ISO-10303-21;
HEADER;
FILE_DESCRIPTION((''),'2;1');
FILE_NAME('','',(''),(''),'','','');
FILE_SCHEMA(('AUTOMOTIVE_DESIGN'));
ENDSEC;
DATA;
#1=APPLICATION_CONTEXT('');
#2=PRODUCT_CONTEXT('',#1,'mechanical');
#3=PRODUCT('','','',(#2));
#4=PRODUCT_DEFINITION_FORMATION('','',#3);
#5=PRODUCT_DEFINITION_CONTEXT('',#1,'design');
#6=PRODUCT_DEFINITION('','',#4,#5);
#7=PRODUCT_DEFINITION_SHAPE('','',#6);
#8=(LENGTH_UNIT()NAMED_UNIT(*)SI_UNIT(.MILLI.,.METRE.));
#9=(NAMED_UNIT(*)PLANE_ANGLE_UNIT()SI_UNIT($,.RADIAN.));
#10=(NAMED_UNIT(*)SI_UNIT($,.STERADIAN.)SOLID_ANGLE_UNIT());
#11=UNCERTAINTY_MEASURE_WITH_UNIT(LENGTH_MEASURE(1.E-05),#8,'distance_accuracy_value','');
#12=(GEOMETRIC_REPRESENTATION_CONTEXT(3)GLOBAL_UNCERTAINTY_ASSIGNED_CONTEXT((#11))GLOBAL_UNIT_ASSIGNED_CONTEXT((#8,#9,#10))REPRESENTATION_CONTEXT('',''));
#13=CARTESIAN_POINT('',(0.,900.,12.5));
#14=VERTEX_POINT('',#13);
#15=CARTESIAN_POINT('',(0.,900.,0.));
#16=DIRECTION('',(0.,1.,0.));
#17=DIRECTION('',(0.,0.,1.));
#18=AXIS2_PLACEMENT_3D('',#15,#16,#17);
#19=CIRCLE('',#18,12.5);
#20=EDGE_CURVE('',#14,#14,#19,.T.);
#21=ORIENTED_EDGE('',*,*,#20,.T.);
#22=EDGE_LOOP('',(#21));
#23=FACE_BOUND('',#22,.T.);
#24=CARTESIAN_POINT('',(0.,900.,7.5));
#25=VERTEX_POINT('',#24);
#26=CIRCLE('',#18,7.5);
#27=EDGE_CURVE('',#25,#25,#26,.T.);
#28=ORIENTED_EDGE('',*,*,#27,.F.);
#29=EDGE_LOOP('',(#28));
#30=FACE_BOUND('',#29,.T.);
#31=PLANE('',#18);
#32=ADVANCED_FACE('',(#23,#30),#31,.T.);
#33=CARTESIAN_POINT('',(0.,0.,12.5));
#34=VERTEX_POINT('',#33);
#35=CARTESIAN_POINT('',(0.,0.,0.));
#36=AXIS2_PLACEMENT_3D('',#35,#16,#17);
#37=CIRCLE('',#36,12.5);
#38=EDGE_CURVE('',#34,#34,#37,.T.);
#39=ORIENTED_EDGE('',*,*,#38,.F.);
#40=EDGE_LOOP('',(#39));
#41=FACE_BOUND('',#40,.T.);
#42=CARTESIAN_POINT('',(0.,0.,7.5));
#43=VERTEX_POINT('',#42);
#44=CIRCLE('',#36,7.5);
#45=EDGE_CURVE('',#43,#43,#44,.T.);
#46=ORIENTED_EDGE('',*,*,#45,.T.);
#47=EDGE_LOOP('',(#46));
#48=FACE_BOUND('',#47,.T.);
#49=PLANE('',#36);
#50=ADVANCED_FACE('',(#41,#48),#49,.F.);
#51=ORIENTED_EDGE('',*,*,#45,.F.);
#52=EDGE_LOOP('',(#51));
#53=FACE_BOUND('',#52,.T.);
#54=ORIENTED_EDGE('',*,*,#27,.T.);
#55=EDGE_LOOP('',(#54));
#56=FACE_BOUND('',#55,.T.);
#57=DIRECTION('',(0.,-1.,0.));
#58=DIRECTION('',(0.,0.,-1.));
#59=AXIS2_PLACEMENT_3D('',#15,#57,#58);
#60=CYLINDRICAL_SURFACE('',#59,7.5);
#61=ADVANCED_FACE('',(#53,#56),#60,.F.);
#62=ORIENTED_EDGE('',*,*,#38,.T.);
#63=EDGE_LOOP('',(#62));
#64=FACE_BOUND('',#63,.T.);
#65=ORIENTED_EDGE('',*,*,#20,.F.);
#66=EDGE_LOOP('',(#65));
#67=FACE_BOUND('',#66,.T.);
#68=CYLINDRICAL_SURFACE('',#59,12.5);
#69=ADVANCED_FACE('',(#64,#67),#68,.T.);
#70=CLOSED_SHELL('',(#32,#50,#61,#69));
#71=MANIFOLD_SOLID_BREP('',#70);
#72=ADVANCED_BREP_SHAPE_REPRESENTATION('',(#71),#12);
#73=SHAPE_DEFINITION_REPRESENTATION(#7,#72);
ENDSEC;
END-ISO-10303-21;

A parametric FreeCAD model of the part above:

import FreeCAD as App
import Part
import Sketcher
Q = App.Units.Quantity

doc = App.newDocument("Part")
params = doc.addObject("Spreadsheet::Sheet", "Params")
for row, (alias, value) in enumerate([
    ("sketch1_diameter", "25 mm"),
    ("sketch1_diameter2", "15 mm"),
    ("pad1_length", "900 mm"),
], start=1):
    params.set(f"A{row}", alias)
    params.set(f"B{row}", "=" + value)
    params.setAlias(f"B{row}", alias)

body = doc.addObject("PartDesign::Body", "Body")

# Sketch on XZ plane
sketch1 = doc.addObject("Sketcher::SketchObject", "Sketch")
body.addObject(sketch1)
sketch1.AttachmentSupport = (doc.XZ_Plane, [""])
sketch1.MapMode = "FlatFace"
sketch1.addGeometry([
    Part.Circle(App.Vector(0, 0, 0), App.Vector(0, 0, 1), 12),
    Part.Circle(App.Vector(0, 0, 0), App.Vector(0, 0, 1), 8),
], False)
sketch1.addConstraint([
    Sketcher.Constraint("Coincident", 0, 3, -1, 1),
    Sketcher.Constraint("Coincident", 1, 3, -1, 1),
    Sketcher.Constraint("Diameter", 0, Q("25 mm")),
    Sketcher.Constraint("Diameter", 1, Q("15 mm")),
])
sketch1.setExpression("Constraints[2]", "Params.sketch1_diameter")
sketch1.setExpression("Constraints[3]", "Params.sketch1_diameter2")
pad1 = doc.addObject("PartDesign::Pad", "Pad")
body.addObject(pad1)
pad1.Profile = sketch1
pad1.setExpression("Length", "Params.pad1_length")
pad1.Reversed = True

doc.recompute()
